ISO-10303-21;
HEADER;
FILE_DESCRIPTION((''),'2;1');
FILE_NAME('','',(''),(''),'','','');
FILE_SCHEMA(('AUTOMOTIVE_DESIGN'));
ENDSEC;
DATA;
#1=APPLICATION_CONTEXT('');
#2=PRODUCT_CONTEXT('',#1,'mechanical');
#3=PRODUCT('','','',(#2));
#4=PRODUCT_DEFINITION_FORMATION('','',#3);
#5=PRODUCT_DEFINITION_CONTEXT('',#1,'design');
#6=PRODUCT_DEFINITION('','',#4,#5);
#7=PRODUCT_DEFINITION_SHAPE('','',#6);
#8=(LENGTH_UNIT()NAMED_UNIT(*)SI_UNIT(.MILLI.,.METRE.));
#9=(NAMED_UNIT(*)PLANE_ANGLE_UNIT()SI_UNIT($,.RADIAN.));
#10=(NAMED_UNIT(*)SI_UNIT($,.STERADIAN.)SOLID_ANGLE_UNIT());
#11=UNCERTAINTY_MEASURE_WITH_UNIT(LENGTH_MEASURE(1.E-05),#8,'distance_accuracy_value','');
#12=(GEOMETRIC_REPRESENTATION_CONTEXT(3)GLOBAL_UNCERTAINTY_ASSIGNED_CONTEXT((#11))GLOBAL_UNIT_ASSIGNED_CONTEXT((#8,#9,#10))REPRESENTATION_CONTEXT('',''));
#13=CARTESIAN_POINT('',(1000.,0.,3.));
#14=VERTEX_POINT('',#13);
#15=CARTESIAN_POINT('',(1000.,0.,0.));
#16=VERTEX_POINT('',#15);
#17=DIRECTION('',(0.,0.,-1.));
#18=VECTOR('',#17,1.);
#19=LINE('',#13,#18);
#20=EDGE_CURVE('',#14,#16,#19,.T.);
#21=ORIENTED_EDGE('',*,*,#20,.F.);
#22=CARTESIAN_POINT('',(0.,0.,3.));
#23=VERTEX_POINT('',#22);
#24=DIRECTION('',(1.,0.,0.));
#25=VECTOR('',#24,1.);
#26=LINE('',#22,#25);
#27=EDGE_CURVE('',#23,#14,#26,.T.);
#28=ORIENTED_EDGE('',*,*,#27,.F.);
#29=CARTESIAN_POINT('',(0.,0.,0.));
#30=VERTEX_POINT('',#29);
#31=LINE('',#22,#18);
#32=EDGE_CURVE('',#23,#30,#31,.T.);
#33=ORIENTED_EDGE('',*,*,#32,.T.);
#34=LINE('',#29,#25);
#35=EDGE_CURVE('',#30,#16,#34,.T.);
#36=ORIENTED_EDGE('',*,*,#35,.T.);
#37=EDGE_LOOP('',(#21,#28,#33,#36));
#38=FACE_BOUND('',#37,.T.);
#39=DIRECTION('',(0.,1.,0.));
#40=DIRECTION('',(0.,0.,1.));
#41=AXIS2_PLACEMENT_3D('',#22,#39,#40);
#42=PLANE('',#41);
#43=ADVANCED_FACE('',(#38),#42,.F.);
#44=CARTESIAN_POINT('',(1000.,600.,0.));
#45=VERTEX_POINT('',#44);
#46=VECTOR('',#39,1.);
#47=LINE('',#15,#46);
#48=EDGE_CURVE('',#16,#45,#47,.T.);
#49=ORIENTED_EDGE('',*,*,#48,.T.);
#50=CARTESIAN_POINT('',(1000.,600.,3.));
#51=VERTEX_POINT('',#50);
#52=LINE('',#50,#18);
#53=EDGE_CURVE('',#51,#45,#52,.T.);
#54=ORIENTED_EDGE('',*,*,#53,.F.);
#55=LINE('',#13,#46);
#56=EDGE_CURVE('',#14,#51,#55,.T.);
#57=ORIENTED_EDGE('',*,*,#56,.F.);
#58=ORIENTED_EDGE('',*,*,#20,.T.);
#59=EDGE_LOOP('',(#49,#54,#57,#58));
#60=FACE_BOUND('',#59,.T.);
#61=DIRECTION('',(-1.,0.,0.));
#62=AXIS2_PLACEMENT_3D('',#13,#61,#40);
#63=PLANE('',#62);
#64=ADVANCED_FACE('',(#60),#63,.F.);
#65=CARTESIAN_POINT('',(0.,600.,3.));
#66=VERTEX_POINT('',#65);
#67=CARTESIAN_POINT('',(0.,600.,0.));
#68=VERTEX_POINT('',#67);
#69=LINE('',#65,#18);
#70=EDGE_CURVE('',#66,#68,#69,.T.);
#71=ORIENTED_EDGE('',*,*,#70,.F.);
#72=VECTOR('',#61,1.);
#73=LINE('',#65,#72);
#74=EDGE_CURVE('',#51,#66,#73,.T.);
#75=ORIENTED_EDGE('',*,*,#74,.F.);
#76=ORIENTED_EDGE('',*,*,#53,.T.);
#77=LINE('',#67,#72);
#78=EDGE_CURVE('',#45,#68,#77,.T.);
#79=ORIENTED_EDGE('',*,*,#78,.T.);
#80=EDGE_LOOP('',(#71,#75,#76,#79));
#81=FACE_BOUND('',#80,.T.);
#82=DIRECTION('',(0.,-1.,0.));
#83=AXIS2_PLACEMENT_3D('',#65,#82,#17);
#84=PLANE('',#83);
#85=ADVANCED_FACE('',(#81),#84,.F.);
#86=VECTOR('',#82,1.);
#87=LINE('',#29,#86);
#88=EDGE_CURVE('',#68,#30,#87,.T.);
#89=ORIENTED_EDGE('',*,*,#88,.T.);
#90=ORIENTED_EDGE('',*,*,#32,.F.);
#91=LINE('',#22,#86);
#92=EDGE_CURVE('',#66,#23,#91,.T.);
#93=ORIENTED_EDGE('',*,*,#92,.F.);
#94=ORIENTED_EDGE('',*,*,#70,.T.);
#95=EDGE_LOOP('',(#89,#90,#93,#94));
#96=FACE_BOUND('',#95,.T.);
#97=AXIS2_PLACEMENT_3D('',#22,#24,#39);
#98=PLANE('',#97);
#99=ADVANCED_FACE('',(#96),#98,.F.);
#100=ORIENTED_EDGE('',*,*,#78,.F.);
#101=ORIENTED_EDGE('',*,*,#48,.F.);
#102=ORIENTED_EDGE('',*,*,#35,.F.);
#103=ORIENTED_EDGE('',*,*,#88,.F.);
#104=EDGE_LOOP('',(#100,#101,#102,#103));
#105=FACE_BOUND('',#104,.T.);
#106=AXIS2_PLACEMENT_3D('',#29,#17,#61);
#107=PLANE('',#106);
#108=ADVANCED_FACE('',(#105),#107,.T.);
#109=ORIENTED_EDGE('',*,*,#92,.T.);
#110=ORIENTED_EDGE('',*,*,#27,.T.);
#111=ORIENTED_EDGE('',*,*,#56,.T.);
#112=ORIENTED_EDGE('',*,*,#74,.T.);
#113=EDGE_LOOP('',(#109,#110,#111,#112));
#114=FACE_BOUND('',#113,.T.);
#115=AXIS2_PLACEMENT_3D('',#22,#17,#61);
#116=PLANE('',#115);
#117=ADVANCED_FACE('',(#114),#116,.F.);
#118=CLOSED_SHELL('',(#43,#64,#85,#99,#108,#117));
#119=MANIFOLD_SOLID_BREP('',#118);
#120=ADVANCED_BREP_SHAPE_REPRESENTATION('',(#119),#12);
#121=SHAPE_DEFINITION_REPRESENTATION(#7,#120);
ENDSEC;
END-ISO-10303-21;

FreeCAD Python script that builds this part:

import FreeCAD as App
import Part
import Sketcher

V = App.Vector
Q = App.Units.Quantity

doc = App.newDocument("Part")
body = doc.addObject("PartDesign::Body", "Body")

sketch1 = body.newObject("Sketcher::SketchObject", "Sketch")
sketch1.AttachmentSupport = (doc.getObject("XY_Plane"), [""])
sketch1.MapMode = "FlatFace"
sketch1.addGeometry([
    Part.LineSegment(V(0, 600, 0), V(0, 0, 0)),
    Part.LineSegment(V(0, 0, 0), V(1000, 0, 0)),
    Part.LineSegment(V(1000, 0, 0), V(1000, 600, 0)),
    Part.LineSegment(V(1000, 600, 0), V(0, 600, 0)),
], False)
sketch1.addConstraint([
    Sketcher.Constraint("Coincident", 0, 2, 1, 1),
    Sketcher.Constraint("Coincident", 1, 2, 2, 1),
    Sketcher.Constraint("Coincident", 2, 2, 3, 1),
    Sketcher.Constraint("Coincident", 3, 2, 0, 1),
    Sketcher.Constraint("Vertical", 0),
    Sketcher.Constraint("Horizontal", 1),
    Sketcher.Constraint("Vertical", 2),
    Sketcher.Constraint("Horizontal", 3),
    Sketcher.Constraint("Coincident", 0, 2, -1, 1),
    Sketcher.Constraint("DistanceX", 1, 1, 1, 2, Q("1000 mm")),
    Sketcher.Constraint("DistanceY", 0, 2, 0, 1, Q("600 mm")),
])
pad1 = body.newObject("PartDesign::Pad", "Pad")
pad1.Profile = sketch1
pad1.Length = 3

doc.recompute()
